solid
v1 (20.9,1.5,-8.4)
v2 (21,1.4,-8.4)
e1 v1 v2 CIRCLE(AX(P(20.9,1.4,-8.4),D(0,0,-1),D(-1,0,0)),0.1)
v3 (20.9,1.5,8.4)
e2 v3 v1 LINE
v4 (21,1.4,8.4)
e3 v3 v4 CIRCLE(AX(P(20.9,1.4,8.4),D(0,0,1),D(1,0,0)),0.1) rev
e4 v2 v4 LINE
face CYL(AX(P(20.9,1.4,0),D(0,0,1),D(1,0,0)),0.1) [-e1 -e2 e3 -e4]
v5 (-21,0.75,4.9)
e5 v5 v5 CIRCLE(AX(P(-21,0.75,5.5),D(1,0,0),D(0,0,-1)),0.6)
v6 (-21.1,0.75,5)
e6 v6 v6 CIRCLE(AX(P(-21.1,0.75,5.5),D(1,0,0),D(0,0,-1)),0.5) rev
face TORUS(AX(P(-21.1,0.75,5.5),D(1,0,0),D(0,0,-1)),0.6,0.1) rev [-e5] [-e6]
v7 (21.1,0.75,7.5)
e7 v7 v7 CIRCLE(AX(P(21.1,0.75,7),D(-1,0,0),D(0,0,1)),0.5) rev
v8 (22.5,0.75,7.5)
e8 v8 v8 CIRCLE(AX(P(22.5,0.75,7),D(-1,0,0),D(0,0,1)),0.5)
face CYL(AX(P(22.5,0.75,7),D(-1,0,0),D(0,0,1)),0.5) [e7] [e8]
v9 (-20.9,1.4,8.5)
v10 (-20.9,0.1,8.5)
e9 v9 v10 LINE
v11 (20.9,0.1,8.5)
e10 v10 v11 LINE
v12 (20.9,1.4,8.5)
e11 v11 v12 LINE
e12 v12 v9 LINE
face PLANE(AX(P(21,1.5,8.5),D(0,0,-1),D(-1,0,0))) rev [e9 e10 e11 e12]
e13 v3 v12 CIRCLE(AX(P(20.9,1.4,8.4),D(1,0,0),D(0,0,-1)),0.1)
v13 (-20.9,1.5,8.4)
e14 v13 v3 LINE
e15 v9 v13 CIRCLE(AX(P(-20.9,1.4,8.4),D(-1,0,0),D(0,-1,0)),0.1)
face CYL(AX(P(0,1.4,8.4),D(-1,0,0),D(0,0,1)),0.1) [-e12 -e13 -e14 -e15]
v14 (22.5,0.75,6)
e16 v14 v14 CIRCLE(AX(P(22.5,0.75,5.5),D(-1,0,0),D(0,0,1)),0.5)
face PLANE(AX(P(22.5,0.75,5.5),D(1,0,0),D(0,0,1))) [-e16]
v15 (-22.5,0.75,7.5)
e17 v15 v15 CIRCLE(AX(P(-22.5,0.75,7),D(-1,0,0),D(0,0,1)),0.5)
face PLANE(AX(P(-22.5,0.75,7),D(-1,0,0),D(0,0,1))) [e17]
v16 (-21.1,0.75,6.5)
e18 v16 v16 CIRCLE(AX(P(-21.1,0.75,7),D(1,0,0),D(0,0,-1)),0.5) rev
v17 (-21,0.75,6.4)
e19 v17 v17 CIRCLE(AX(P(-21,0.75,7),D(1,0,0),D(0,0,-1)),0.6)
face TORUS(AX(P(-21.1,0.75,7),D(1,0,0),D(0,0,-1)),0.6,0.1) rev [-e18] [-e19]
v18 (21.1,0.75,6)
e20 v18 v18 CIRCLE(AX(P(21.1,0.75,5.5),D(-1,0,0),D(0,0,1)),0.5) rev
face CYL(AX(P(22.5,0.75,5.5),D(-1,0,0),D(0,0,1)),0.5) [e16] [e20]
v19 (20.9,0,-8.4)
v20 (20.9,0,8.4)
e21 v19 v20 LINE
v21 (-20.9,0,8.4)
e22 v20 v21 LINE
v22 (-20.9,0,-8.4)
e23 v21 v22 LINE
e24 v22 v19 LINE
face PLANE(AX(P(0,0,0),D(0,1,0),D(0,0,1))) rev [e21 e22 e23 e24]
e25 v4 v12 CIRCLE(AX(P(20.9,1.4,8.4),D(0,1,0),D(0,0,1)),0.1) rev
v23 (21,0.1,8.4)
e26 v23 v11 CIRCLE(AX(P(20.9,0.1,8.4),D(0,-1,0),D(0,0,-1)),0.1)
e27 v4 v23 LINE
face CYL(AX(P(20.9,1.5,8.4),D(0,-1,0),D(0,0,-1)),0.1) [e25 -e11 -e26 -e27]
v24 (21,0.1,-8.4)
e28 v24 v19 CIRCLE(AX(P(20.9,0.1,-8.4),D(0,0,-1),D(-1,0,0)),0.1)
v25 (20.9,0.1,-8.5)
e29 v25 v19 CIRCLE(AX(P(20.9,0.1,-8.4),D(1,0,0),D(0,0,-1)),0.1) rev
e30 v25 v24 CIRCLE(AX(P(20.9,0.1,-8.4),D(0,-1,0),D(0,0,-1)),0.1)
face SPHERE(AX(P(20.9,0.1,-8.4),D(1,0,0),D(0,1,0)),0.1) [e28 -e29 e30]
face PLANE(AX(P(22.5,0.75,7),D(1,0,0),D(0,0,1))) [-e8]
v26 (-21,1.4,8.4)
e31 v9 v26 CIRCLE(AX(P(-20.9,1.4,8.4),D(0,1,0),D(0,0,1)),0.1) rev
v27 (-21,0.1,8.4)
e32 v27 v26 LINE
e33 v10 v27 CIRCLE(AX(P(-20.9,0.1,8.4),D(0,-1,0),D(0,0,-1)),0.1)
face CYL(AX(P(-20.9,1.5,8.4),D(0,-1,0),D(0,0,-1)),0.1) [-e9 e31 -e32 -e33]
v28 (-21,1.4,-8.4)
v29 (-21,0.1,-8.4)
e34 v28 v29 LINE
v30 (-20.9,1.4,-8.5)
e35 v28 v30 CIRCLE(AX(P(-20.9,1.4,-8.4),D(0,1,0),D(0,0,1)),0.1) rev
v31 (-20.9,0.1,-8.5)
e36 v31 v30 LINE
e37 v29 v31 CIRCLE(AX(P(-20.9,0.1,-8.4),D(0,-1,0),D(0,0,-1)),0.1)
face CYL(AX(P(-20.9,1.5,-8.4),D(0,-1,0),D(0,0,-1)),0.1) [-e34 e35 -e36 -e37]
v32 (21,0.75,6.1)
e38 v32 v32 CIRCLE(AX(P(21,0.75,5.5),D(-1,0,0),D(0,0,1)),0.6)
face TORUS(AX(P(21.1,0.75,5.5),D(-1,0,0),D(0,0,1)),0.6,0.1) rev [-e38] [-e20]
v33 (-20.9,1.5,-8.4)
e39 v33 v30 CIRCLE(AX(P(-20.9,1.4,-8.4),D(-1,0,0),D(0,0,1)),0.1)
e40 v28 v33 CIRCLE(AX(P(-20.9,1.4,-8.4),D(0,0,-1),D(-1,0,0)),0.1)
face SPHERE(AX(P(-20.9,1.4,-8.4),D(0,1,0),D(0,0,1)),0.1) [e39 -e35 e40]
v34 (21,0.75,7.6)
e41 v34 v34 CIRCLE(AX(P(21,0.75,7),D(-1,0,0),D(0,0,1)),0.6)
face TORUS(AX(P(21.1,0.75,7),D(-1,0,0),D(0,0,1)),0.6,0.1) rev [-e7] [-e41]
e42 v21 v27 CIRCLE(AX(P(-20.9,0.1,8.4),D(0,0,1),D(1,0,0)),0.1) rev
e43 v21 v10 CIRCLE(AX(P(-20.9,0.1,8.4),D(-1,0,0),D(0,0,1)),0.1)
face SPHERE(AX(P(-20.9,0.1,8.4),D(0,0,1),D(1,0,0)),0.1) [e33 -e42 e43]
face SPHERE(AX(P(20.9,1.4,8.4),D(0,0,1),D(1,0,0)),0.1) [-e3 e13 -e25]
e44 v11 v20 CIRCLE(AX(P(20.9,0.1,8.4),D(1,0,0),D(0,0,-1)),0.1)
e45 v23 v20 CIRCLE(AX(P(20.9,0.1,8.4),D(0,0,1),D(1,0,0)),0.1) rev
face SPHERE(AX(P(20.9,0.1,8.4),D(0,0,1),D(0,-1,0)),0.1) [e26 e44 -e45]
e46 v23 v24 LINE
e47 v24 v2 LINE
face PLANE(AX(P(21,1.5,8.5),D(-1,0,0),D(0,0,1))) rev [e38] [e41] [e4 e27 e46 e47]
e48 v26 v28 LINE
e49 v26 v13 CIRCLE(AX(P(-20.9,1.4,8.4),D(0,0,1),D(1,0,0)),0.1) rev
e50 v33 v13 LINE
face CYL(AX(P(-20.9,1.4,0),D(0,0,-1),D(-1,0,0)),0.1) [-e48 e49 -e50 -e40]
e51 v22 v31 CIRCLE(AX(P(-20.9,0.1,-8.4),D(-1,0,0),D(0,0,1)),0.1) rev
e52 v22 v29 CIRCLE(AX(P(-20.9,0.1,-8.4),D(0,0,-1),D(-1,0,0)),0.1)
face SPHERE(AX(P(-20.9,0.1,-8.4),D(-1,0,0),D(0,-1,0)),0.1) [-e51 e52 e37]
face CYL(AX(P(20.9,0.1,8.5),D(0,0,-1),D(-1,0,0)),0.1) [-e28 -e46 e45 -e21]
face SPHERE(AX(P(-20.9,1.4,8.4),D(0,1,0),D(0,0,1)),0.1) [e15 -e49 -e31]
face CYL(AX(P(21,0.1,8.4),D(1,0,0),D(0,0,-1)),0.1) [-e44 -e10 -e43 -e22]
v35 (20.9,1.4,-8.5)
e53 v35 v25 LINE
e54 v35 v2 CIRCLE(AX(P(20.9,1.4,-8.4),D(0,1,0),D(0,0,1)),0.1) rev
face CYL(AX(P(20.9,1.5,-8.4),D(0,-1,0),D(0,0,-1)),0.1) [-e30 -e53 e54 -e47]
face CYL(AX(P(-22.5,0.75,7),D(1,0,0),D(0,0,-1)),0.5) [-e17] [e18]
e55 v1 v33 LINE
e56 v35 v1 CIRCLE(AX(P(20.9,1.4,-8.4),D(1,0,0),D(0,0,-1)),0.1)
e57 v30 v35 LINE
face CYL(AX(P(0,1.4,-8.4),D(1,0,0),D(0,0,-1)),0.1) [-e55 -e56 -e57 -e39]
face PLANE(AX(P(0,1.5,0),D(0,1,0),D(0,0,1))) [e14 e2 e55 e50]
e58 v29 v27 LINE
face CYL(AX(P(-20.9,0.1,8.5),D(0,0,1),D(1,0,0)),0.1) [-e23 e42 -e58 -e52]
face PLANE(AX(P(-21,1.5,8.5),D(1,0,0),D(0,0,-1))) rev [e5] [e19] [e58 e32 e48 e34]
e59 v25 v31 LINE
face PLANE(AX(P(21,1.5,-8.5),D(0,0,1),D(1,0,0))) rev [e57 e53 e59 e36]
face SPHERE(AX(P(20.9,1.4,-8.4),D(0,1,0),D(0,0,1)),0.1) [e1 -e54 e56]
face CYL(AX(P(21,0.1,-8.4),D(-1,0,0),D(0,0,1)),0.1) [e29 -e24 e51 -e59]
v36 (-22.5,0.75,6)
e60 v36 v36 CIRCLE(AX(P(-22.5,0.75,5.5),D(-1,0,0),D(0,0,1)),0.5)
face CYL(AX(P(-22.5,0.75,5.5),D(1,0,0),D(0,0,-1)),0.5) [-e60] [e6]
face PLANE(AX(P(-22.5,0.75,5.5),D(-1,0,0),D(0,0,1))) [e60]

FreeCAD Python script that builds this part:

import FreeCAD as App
import Part
import Sketcher
from FreeCAD import Vector
Q = App.Units.Quantity


def edges_at(feature, points):
    """Names of the edges that pass closest to the given points."""
    edges = feature.Shape.Edges
    near = lambda p: min(range(len(edges)), key=lambda i: edges[i].distToShape(Part.Vertex(*p))[0])
    return sorted({f"Edge{near(p) + 1}" for p in points})


def add_polygon(sketch, points):
    """Adds a closed chain of lines whose ends are joined by coincident constraints."""
    first, n = sketch.GeometryCount, len(points)
    for a, b in zip(points, points[1:] + points[:1]):
        sketch.addGeometry(Part.LineSegment(App.Vector(*a, 0), App.Vector(*b, 0)), False)
    for i in range(n):
        sketch.addConstraint(Sketcher.Constraint("Coincident", first + i, 2, first + (i + 1) % n, 1))

doc = App.newDocument("Part")
params = doc.addObject("Spreadsheet::Sheet", "Params")
for row, (alias, value) in enumerate([
    ("sketch1_width", "42 mm"),
    ("sketch1_height", "17 mm"),
    ("pad1_length", "1.5 mm"),
    ("sketch2_diameter", "1 mm"),
    ("pad2_length", "1.5 mm"),
    ("fillet_radius", "0.1 mm"),
], start=1):
    params.set(f"A{row}", alias)
    params.set(f"B{row}", "=" + value)
    params.setAlias(f"B{row}", alias)

body = doc.addObject("PartDesign::Body", "Body")

# Sketch on XZ plane
sketch1 = body.newObject("Sketcher::SketchObject", "Sketch")
sketch1.AttachmentSupport = (doc.getObject("XZ_Plane"), [""])
sketch1.MapMode = "FlatFace"
add_polygon(sketch1, [(-21, -8), (-21, 8), (21, 8), (21, -8)])  # lines 0-3
sketch1.addConstraint([
    Sketcher.Constraint("Vertical", 0),
    Sketcher.Constraint("Horizontal", 1),
    Sketcher.Constraint("Vertical", 2),
    Sketcher.Constraint("Horizontal", 3),
    Sketcher.Constraint("Symmetric", 0, 2, 2, 2, -1, 1),
    Sketcher.Constraint("DistanceX", 1, 1, 1, 2, Q("42 mm")),
    Sketcher.Constraint("DistanceY", 0, 1, 0, 2, Q("17 mm")),
])
sketch1.setExpression("Constraints[9]", "Params.sketch1_width")
sketch1.setExpression("Constraints[10]", "Params.sketch1_height")
pad1 = body.newObject("PartDesign::Pad", "Pad")
pad1.Profile = sketch1
pad1.setExpression("Length", "Params.pad1_length")
pad1.Reversed = True

# Sketch on YZ plane
sketch2 = body.newObject("Sketcher::SketchObject", "Sketch001")
sketch2.AttachmentSupport = (doc.getObject("YZ_Plane"), [""])
sketch2.MapMode = "FlatFace"
sketch2.AttachmentOffset = App.Placement(Vector(0, 0, -21), App.Rotation())
sketch2.addGeometry([
    Part.Circle(Vector(0.8, 5.5, 0), Vector(0, 0, 1), 0.5),
    Part.Circle(Vector(0.8, 7, 0), Vector(0, 0, 1), 0.5),
], False)
sketch2.addConstraint([
    Sketcher.Constraint("Equal", 0, 1),
    Sketcher.Constraint("Vertical", 0, 3, 1, 3),
    Sketcher.Constraint("Diameter", 0, Q("1 mm")),
    Sketcher.Constraint("DistanceY", -1, 1, 1, 3, Q("7 mm")),
    Sketcher.Constraint("DistanceY", -1, 1, 0, 3, Q("5.5 mm")),
    Sketcher.Constraint("DistanceX", -1, 1, 0, 3, Q("0.75 mm")),
])
sketch2.setExpression("Constraints[2]", "Params.sketch2_diameter")
pad2 = body.newObject("PartDesign::Pad", "Pad001")
pad2.Profile = sketch2
pad2.setExpression("Length", "Params.pad2_length")
pad2.Reversed = True
doc.recompute()

mirrored = body.newObject("PartDesign::Mirrored", "Mirrored")
mirrored.Originals = [pad2]
mirrored.MirrorPlane = (doc.getObject("YZ_Plane"), [""])
body.Tip = mirrored
doc.recompute()

fillet = body.newObject("PartDesign::Fillet", "Fillet")
fillet.Base = (mirrored, edges_at(mirrored, [
    (21, 1.5, 0),
    (-21, 0.75, 7.5),
    (-21, 0.75, 6),
    (0, 1.5, -8.5),
    (21, 0.75, 6),
    (21, 0.75, 7.5),
    (-21, 1.5, 0),
    (0, 0, -8.5),
    (21, 0, 0),
    (0, 0, 8.5),
    (-21, 0, 0),
    (-21, 0.75, -8.5),
    (21, 0.75, -8.5),
    (21, 0.75, 8.5),
    (-21, 0.75, 8.5),
    (0, 1.5, 8.5),
]))
fillet.setExpression("Radius", "Params.fillet_radius")

doc.recompute()
